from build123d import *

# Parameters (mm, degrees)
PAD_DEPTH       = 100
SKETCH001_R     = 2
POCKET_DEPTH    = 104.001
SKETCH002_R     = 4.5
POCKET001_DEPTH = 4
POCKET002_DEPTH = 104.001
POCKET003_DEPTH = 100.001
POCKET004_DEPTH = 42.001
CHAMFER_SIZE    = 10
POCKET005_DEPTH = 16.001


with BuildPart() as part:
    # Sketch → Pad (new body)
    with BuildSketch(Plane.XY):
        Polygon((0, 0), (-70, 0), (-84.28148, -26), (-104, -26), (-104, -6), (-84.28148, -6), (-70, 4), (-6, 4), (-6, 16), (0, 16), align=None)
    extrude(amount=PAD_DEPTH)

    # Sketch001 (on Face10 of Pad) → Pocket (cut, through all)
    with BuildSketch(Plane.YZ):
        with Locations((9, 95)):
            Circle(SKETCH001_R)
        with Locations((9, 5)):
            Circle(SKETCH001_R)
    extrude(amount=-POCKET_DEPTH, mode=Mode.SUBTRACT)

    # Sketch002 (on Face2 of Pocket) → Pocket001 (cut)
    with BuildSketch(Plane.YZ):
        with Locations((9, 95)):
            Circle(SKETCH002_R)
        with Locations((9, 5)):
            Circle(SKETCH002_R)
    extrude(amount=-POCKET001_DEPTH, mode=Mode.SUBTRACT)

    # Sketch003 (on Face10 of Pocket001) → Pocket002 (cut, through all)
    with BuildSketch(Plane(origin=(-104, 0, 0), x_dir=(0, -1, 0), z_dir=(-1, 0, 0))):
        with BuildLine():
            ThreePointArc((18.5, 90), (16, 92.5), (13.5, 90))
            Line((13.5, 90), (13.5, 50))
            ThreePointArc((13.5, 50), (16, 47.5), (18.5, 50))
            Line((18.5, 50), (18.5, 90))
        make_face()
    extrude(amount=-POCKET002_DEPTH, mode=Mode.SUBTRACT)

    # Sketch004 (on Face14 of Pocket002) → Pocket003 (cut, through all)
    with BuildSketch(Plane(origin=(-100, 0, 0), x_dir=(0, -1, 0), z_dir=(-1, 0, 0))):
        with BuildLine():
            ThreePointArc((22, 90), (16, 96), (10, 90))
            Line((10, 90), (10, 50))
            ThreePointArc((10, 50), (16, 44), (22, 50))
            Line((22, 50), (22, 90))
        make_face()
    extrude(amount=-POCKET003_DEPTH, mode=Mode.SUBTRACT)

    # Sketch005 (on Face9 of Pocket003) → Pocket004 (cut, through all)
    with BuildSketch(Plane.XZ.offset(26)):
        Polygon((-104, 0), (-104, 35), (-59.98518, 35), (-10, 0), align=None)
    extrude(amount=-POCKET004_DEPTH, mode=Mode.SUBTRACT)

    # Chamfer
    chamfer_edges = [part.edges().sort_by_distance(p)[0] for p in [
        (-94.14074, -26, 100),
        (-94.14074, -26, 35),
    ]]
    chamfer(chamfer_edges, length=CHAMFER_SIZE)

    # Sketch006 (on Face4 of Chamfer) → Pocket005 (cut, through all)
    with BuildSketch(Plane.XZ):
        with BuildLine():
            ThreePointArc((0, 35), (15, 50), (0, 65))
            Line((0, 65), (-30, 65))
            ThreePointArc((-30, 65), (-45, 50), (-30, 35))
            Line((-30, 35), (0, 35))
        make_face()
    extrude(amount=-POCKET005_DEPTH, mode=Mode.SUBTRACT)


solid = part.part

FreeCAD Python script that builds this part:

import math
import FreeCAD as App
import Part
import Sketcher

V = App.Vector
Q = App.Units.Quantity


def edges_at(feature, points):
    """Names of the edges that pass closest to the given points."""
    edges = feature.Shape.Edges
    near = lambda p: min(range(len(edges)), key=lambda i: edges[i].distToShape(Part.Vertex(*p))[0])
    return sorted({f"Edge{near(p) + 1}" for p in points})

doc = App.newDocument("Part")
body = doc.addObject("PartDesign::Body", "Body")

sketch1 = body.newObject("Sketcher::SketchObject", "Sketch")
sketch1.AttachmentSupport = (doc.getObject("XY_Plane"), [""])
sketch1.MapMode = "FlatFace"
sketch1.addGeometry([
    Part.LineSegment(V(-70, 0, 0), V(0, 0, 0)),
    Part.LineSegment(V(0, 0, 0), V(0, 16, 0)),
    Part.LineSegment(V(0, 16, 0), V(-6, 16, 0)),
    Part.LineSegment(V(-6, 16, 0), V(-6, 4, 0)),
    Part.LineSegment(V(-6, 4, 0), V(-70, 4, 0)),
    Part.LineSegment(V(-70, 4, 0), V(-84, -6, 0)),
    Part.LineSegment(V(-84, -6, 0), V(-104, -6, 0)),
    Part.LineSegment(V(-104, -6, 0), V(-104, -26, 0)),
    Part.LineSegment(V(-104, -26, 0), V(-84, -26, 0)),
    Part.LineSegment(V(-84, -26, 0), V(-70, 0, 0)),
], False)
sketch1.addConstraint([
    Sketcher.Constraint("Coincident", 0, 2, 1, 1),
    Sketcher.Constraint("Coincident", 1, 2, 2, 1),
    Sketcher.Constraint("Coincident", 2, 2, 3, 1),
    Sketcher.Constraint("Coincident", 3, 2, 4, 1),
    Sketcher.Constraint("Coincident", 4, 2, 5, 1),
    Sketcher.Constraint("Coincident", 5, 2, 6, 1),
    Sketcher.Constraint("Coincident", 6, 2, 7, 1),
    Sketcher.Constraint("Coincident", 7, 2, 8, 1),
    Sketcher.Constraint("Coincident", 8, 2, 9, 1),
    Sketcher.Constraint("Coincident", 9, 2, 0, 1),
    Sketcher.Constraint("Horizontal", 0),
    Sketcher.Constraint("Vertical", 1),
    Sketcher.Constraint("Horizontal", 2),
    Sketcher.Constraint("Vertical", 3),
    Sketcher.Constraint("Horizontal", 4),
    Sketcher.Constraint("Horizontal", 6),
    Sketcher.Constraint("Vertical", 7),
    Sketcher.Constraint("Horizontal", 8),
    Sketcher.Constraint("Coincident", 0, 2, -1, 1),
    Sketcher.Constraint("Vertical", 5, 2, 8, 2),
    Sketcher.Constraint("Vertical", 4, 2, 9, 2),
    Sketcher.Constraint("DistanceX", 0, 1, 0, 2, 70.0),
    Sketcher.Constraint("DistanceX", 2, 2, 2, 1, 6.0),
    Sketcher.Constraint("DistanceY", 1, 1, 1, 2, 16.0),
    Sketcher.Constraint("DistanceY", 3, 2, 3, 1, 12.0),
    Sketcher.Constraint("DistanceY", 7, 2, 7, 1, 20.0),
    Sketcher.Constraint("Angle", 5, Q("-145 deg")),
    Sketcher.Constraint("DistanceY", 5, 2, -1, 1, 6.0),
    Sketcher.Constraint("DistanceX", 6, 2, -1, 1, 104.0),
])
pad1 = body.newObject("PartDesign::Pad", "Pad")
pad1.Profile = sketch1
pad1.Length = 100

sketch2 = body.newObject("Sketcher::SketchObject", "Sketch001")
sketch2.AttachmentSupport = (doc.getObject("YZ_Plane"), [""])
sketch2.MapMode = "FlatFace"
sketch2.addGeometry([
    Part.Circle(V(9, 95, 0), V(0, 0, 1), 2),
    Part.Circle(V(9, 5, 0), V(0, 0, 1), 2),
], False)
sketch2.addConstraint([
    Sketcher.Constraint("Equal", 0, 1),
    Sketcher.Constraint("Vertical", 0, 3, 1, 3),
    Sketcher.Constraint("Diameter", 0, 4.0),
    Sketcher.Constraint("DistanceX", -1, 1, 0, 3, 9.0),
    Sketcher.Constraint("DistanceY", -1, 1, 0, 3, 95.0),
    Sketcher.Constraint("DistanceY", -1, 1, 1, 3, 5.0),
])
pocket1 = body.newObject("PartDesign::Pocket", "Pocket")
pocket1.Profile = sketch2
pocket1.Type = "ThroughAll"

sketch3 = body.newObject("Sketcher::SketchObject", "Sketch002")
sketch3.AttachmentSupport = (doc.getObject("YZ_Plane"), [""])
sketch3.MapMode = "FlatFace"
sketch3.addGeometry([
    Part.Circle(V(9, 95, 0), V(0, 0, 1), 4.5),
    Part.Circle(V(9, 5, 0), V(0, 0, 1), 4.5),
], False)
sketch3.addConstraint([
    Sketcher.Constraint("Equal", 0, 1),
    Sketcher.Constraint("Vertical", 0, 3, 1, 3),
    Sketcher.Constraint("Diameter", 0, 9.0),
    Sketcher.Constraint("DistanceX", -1, 1, 0, 3, 9.0),
    Sketcher.Constraint("DistanceY", -1, 1, 0, 3, 95.0),
    Sketcher.Constraint("DistanceY", -1, 1, 1, 3, 5.0),
])
pocket2 = body.newObject("PartDesign::Pocket", "Pocket001")
pocket2.Profile = sketch3
pocket2.Length = 4

sketch4 = body.newObject("Sketcher::SketchObject", "Sketch003")
sketch4.AttachmentSupport = (doc.getObject("YZ_Plane"), [""])
sketch4.MapMode = "FlatFace"
sketch4.AttachmentOffset = App.Placement(V(0, 0, -104), App.Rotation())
sketch4.addGeometry([
    Part.ArcOfCircle(Part.Circle(V(-16, 90, 0), V(0, 0, 1), 2.5), math.radians(0), math.radians(180)),
    Part.LineSegment(V(-13.5, 90, 0), V(-13.5, 50, 0)),
    Part.ArcOfCircle(Part.Circle(V(-16, 50, 0), V(0, 0, 1), 2.5), math.radians(180), math.radians(360)),
    Part.LineSegment(V(-18.5, 50, 0), V(-18.5, 90, 0)),
], False)
sketch4.addConstraint([
    Sketcher.Constraint("Tangent", 0, 1, 1, 1),
    Sketcher.Constraint("Tangent", 1, 2, 2, 2),
    Sketcher.Constraint("Tangent", 2, 1, 3, 1),
    Sketcher.Constraint("Tangent", 3, 2, 0, 2),
    Sketcher.Constraint("Vertical", 1),
    Sketcher.Constraint("Vertical", 3),
    Sketcher.Constraint("Radius", 0, 2.5),
    Sketcher.Constraint("DistanceY", 1, 2, 1, 1, 40.0),
    Sketcher.Constraint("DistanceX", 0, 3, -1, 1, 16.0),
    Sketcher.Constraint("DistanceY", -1, 1, 0, 3, 90.0),
])
pocket3 = body.newObject("PartDesign::Pocket", "Pocket002")
pocket3.Profile = sketch4
pocket3.Type = "ThroughAll"
pocket3.Reversed = True

sketch5 = body.newObject("Sketcher::SketchObject", "Sketch004")
sketch5.AttachmentSupport = (doc.getObject("YZ_Plane"), [""])
sketch5.MapMode = "FlatFace"
sketch5.AttachmentOffset = App.Placement(V(0, 0, -100), App.Rotation())
sketch5.addGeometry([
    Part.ArcOfCircle(Part.Circle(V(-16, 90, 0), V(0, 0, 1), 6), math.radians(0), math.radians(180)),
    Part.LineSegment(V(-10, 90, 0), V(-10, 50, 0)),
    Part.ArcOfCircle(Part.Circle(V(-16, 50, 0), V(0, 0, 1), 6), math.radians(180), math.radians(360)),
    Part.LineSegment(V(-22, 50, 0), V(-22, 90, 0)),
], False)
sketch5.addConstraint([
    Sketcher.Constraint("Tangent", 0, 1, 1, 1),
    Sketcher.Constraint("Tangent", 1, 2, 2, 2),
    Sketcher.Constraint("Tangent", 2, 1, 3, 1),
    Sketcher.Constraint("Tangent", 3, 2, 0, 2),
    Sketcher.Constraint("Vertical", 1),
    Sketcher.Constraint("Vertical", 3),
    Sketcher.Constraint("Radius", 0, 6.0),
    Sketcher.Constraint("DistanceY", 1, 2, 1, 1, 40.0),
    Sketcher.Constraint("DistanceX", 0, 3, -1, 1, 16.0),
    Sketcher.Constraint("DistanceY", -1, 1, 0, 3, 90.0),
])
pocket4 = body.newObject("PartDesign::Pocket", "Pocket003")
pocket4.Profile = sketch5
pocket4.Type = "ThroughAll"
pocket4.Reversed = True

sketch6 = body.newObject("Sketcher::SketchObject", "Sketch005")
sketch6.AttachmentSupport = (doc.getObject("XZ_Plane"), [""])
sketch6.MapMode = "FlatFace"
sketch6.AttachmentOffset = App.Placement(V(0, 0, 26), App.Rotation())
sketch6.addGeometry([
    Part.LineSegment(V(-104, 35, 0), V(-104, 0, 0)),
    Part.LineSegment(V(-104, 0, 0), V(-10, 0, 0)),
    Part.LineSegment(V(-10, 0, 0), V(-60, 35, 0)),
    Part.LineSegment(V(-60, 35, 0), V(-104, 35, 0)),
], False)
sketch6.addConstraint([
    Sketcher.Constraint("Coincident", 0, 2, 1, 1),
    Sketcher.Constraint("Coincident", 1, 2, 2, 1),
    Sketcher.Constraint("Coincident", 2, 2, 3, 1),
    Sketcher.Constraint("Coincident", 3, 2, 0, 1),
    Sketcher.Constraint("Vertical", 0),
    Sketcher.Constraint("Horizontal", 1),
    Sketcher.Constraint("Horizontal", 3),
    Sketcher.Constraint("PointOnObject", 0, 2, -1),
    Sketcher.Constraint("DistanceX", 1, 1, 1, 2, 94.0),
    Sketcher.Constraint("DistanceY", 0, 2, 0, 1, 35.0),
    Sketcher.Constraint("Angle", 2, Q("145 deg")),
    Sketcher.Constraint("DistanceX", 0, 2, -1, 1, 104.0),
])
pocket5 = body.newObject("PartDesign::Pocket", "Pocket004")
pocket5.Profile = sketch6
pocket5.Type = "ThroughAll"
doc.recompute()

chamfer = body.newObject("PartDesign::Chamfer", "Chamfer")
chamfer.Base = (pocket5, edges_at(pocket5, [(-94.141, -26, 100), (-94.141, -26, 35)]))
chamfer.Size = 10

sketch7 = body.newObject("Sketcher::SketchObject", "Sketch006")
sketch7.AttachmentSupport = (doc.getObject("XZ_Plane"), [""])
sketch7.MapMode = "FlatFace"
sketch7.addGeometry([
    Part.ArcOfCircle(Part.Circle(V(0, 50, 0), V(0, 0, 1), 15), math.radians(-90), math.radians(90)),
    Part.LineSegment(V(0, 65, 0), V(-30, 65, 0)),
    Part.ArcOfCircle(Part.Circle(V(-30, 50, 0), V(0, 0, 1), 15), math.radians(90), math.radians(270)),
    Part.LineSegment(V(-30, 35, 0), V(0, 35, 0)),
], False)
sketch7.addConstraint([
    Sketcher.Constraint("Tangent", 0, 2, 1, 1),
    Sketcher.Constraint("Tangent", 1, 2, 2, 1),
    Sketcher.Constraint("Tangent", 2, 2, 3, 1),
    Sketcher.Constraint("Tangent", 3, 2, 0, 1),
    Sketcher.Constraint("Horizontal", 1),
    Sketcher.Constraint("Horizontal", 3),
    Sketcher.Constraint("PointOnObject", 0, 3, -2),
    Sketcher.Constraint("Radius", 0, 15.0),
    Sketcher.Constraint("DistanceX", 1, 2, 1, 1, 30.0),
    Sketcher.Constraint("DistanceY", -1, 1, 0, 3, 50.0),
])
pocket6 = body.newObject("PartDesign::Pocket", "Pocket005")
pocket6.Profile = sketch7
pocket6.Type = "ThroughAll"

doc.recompute()
